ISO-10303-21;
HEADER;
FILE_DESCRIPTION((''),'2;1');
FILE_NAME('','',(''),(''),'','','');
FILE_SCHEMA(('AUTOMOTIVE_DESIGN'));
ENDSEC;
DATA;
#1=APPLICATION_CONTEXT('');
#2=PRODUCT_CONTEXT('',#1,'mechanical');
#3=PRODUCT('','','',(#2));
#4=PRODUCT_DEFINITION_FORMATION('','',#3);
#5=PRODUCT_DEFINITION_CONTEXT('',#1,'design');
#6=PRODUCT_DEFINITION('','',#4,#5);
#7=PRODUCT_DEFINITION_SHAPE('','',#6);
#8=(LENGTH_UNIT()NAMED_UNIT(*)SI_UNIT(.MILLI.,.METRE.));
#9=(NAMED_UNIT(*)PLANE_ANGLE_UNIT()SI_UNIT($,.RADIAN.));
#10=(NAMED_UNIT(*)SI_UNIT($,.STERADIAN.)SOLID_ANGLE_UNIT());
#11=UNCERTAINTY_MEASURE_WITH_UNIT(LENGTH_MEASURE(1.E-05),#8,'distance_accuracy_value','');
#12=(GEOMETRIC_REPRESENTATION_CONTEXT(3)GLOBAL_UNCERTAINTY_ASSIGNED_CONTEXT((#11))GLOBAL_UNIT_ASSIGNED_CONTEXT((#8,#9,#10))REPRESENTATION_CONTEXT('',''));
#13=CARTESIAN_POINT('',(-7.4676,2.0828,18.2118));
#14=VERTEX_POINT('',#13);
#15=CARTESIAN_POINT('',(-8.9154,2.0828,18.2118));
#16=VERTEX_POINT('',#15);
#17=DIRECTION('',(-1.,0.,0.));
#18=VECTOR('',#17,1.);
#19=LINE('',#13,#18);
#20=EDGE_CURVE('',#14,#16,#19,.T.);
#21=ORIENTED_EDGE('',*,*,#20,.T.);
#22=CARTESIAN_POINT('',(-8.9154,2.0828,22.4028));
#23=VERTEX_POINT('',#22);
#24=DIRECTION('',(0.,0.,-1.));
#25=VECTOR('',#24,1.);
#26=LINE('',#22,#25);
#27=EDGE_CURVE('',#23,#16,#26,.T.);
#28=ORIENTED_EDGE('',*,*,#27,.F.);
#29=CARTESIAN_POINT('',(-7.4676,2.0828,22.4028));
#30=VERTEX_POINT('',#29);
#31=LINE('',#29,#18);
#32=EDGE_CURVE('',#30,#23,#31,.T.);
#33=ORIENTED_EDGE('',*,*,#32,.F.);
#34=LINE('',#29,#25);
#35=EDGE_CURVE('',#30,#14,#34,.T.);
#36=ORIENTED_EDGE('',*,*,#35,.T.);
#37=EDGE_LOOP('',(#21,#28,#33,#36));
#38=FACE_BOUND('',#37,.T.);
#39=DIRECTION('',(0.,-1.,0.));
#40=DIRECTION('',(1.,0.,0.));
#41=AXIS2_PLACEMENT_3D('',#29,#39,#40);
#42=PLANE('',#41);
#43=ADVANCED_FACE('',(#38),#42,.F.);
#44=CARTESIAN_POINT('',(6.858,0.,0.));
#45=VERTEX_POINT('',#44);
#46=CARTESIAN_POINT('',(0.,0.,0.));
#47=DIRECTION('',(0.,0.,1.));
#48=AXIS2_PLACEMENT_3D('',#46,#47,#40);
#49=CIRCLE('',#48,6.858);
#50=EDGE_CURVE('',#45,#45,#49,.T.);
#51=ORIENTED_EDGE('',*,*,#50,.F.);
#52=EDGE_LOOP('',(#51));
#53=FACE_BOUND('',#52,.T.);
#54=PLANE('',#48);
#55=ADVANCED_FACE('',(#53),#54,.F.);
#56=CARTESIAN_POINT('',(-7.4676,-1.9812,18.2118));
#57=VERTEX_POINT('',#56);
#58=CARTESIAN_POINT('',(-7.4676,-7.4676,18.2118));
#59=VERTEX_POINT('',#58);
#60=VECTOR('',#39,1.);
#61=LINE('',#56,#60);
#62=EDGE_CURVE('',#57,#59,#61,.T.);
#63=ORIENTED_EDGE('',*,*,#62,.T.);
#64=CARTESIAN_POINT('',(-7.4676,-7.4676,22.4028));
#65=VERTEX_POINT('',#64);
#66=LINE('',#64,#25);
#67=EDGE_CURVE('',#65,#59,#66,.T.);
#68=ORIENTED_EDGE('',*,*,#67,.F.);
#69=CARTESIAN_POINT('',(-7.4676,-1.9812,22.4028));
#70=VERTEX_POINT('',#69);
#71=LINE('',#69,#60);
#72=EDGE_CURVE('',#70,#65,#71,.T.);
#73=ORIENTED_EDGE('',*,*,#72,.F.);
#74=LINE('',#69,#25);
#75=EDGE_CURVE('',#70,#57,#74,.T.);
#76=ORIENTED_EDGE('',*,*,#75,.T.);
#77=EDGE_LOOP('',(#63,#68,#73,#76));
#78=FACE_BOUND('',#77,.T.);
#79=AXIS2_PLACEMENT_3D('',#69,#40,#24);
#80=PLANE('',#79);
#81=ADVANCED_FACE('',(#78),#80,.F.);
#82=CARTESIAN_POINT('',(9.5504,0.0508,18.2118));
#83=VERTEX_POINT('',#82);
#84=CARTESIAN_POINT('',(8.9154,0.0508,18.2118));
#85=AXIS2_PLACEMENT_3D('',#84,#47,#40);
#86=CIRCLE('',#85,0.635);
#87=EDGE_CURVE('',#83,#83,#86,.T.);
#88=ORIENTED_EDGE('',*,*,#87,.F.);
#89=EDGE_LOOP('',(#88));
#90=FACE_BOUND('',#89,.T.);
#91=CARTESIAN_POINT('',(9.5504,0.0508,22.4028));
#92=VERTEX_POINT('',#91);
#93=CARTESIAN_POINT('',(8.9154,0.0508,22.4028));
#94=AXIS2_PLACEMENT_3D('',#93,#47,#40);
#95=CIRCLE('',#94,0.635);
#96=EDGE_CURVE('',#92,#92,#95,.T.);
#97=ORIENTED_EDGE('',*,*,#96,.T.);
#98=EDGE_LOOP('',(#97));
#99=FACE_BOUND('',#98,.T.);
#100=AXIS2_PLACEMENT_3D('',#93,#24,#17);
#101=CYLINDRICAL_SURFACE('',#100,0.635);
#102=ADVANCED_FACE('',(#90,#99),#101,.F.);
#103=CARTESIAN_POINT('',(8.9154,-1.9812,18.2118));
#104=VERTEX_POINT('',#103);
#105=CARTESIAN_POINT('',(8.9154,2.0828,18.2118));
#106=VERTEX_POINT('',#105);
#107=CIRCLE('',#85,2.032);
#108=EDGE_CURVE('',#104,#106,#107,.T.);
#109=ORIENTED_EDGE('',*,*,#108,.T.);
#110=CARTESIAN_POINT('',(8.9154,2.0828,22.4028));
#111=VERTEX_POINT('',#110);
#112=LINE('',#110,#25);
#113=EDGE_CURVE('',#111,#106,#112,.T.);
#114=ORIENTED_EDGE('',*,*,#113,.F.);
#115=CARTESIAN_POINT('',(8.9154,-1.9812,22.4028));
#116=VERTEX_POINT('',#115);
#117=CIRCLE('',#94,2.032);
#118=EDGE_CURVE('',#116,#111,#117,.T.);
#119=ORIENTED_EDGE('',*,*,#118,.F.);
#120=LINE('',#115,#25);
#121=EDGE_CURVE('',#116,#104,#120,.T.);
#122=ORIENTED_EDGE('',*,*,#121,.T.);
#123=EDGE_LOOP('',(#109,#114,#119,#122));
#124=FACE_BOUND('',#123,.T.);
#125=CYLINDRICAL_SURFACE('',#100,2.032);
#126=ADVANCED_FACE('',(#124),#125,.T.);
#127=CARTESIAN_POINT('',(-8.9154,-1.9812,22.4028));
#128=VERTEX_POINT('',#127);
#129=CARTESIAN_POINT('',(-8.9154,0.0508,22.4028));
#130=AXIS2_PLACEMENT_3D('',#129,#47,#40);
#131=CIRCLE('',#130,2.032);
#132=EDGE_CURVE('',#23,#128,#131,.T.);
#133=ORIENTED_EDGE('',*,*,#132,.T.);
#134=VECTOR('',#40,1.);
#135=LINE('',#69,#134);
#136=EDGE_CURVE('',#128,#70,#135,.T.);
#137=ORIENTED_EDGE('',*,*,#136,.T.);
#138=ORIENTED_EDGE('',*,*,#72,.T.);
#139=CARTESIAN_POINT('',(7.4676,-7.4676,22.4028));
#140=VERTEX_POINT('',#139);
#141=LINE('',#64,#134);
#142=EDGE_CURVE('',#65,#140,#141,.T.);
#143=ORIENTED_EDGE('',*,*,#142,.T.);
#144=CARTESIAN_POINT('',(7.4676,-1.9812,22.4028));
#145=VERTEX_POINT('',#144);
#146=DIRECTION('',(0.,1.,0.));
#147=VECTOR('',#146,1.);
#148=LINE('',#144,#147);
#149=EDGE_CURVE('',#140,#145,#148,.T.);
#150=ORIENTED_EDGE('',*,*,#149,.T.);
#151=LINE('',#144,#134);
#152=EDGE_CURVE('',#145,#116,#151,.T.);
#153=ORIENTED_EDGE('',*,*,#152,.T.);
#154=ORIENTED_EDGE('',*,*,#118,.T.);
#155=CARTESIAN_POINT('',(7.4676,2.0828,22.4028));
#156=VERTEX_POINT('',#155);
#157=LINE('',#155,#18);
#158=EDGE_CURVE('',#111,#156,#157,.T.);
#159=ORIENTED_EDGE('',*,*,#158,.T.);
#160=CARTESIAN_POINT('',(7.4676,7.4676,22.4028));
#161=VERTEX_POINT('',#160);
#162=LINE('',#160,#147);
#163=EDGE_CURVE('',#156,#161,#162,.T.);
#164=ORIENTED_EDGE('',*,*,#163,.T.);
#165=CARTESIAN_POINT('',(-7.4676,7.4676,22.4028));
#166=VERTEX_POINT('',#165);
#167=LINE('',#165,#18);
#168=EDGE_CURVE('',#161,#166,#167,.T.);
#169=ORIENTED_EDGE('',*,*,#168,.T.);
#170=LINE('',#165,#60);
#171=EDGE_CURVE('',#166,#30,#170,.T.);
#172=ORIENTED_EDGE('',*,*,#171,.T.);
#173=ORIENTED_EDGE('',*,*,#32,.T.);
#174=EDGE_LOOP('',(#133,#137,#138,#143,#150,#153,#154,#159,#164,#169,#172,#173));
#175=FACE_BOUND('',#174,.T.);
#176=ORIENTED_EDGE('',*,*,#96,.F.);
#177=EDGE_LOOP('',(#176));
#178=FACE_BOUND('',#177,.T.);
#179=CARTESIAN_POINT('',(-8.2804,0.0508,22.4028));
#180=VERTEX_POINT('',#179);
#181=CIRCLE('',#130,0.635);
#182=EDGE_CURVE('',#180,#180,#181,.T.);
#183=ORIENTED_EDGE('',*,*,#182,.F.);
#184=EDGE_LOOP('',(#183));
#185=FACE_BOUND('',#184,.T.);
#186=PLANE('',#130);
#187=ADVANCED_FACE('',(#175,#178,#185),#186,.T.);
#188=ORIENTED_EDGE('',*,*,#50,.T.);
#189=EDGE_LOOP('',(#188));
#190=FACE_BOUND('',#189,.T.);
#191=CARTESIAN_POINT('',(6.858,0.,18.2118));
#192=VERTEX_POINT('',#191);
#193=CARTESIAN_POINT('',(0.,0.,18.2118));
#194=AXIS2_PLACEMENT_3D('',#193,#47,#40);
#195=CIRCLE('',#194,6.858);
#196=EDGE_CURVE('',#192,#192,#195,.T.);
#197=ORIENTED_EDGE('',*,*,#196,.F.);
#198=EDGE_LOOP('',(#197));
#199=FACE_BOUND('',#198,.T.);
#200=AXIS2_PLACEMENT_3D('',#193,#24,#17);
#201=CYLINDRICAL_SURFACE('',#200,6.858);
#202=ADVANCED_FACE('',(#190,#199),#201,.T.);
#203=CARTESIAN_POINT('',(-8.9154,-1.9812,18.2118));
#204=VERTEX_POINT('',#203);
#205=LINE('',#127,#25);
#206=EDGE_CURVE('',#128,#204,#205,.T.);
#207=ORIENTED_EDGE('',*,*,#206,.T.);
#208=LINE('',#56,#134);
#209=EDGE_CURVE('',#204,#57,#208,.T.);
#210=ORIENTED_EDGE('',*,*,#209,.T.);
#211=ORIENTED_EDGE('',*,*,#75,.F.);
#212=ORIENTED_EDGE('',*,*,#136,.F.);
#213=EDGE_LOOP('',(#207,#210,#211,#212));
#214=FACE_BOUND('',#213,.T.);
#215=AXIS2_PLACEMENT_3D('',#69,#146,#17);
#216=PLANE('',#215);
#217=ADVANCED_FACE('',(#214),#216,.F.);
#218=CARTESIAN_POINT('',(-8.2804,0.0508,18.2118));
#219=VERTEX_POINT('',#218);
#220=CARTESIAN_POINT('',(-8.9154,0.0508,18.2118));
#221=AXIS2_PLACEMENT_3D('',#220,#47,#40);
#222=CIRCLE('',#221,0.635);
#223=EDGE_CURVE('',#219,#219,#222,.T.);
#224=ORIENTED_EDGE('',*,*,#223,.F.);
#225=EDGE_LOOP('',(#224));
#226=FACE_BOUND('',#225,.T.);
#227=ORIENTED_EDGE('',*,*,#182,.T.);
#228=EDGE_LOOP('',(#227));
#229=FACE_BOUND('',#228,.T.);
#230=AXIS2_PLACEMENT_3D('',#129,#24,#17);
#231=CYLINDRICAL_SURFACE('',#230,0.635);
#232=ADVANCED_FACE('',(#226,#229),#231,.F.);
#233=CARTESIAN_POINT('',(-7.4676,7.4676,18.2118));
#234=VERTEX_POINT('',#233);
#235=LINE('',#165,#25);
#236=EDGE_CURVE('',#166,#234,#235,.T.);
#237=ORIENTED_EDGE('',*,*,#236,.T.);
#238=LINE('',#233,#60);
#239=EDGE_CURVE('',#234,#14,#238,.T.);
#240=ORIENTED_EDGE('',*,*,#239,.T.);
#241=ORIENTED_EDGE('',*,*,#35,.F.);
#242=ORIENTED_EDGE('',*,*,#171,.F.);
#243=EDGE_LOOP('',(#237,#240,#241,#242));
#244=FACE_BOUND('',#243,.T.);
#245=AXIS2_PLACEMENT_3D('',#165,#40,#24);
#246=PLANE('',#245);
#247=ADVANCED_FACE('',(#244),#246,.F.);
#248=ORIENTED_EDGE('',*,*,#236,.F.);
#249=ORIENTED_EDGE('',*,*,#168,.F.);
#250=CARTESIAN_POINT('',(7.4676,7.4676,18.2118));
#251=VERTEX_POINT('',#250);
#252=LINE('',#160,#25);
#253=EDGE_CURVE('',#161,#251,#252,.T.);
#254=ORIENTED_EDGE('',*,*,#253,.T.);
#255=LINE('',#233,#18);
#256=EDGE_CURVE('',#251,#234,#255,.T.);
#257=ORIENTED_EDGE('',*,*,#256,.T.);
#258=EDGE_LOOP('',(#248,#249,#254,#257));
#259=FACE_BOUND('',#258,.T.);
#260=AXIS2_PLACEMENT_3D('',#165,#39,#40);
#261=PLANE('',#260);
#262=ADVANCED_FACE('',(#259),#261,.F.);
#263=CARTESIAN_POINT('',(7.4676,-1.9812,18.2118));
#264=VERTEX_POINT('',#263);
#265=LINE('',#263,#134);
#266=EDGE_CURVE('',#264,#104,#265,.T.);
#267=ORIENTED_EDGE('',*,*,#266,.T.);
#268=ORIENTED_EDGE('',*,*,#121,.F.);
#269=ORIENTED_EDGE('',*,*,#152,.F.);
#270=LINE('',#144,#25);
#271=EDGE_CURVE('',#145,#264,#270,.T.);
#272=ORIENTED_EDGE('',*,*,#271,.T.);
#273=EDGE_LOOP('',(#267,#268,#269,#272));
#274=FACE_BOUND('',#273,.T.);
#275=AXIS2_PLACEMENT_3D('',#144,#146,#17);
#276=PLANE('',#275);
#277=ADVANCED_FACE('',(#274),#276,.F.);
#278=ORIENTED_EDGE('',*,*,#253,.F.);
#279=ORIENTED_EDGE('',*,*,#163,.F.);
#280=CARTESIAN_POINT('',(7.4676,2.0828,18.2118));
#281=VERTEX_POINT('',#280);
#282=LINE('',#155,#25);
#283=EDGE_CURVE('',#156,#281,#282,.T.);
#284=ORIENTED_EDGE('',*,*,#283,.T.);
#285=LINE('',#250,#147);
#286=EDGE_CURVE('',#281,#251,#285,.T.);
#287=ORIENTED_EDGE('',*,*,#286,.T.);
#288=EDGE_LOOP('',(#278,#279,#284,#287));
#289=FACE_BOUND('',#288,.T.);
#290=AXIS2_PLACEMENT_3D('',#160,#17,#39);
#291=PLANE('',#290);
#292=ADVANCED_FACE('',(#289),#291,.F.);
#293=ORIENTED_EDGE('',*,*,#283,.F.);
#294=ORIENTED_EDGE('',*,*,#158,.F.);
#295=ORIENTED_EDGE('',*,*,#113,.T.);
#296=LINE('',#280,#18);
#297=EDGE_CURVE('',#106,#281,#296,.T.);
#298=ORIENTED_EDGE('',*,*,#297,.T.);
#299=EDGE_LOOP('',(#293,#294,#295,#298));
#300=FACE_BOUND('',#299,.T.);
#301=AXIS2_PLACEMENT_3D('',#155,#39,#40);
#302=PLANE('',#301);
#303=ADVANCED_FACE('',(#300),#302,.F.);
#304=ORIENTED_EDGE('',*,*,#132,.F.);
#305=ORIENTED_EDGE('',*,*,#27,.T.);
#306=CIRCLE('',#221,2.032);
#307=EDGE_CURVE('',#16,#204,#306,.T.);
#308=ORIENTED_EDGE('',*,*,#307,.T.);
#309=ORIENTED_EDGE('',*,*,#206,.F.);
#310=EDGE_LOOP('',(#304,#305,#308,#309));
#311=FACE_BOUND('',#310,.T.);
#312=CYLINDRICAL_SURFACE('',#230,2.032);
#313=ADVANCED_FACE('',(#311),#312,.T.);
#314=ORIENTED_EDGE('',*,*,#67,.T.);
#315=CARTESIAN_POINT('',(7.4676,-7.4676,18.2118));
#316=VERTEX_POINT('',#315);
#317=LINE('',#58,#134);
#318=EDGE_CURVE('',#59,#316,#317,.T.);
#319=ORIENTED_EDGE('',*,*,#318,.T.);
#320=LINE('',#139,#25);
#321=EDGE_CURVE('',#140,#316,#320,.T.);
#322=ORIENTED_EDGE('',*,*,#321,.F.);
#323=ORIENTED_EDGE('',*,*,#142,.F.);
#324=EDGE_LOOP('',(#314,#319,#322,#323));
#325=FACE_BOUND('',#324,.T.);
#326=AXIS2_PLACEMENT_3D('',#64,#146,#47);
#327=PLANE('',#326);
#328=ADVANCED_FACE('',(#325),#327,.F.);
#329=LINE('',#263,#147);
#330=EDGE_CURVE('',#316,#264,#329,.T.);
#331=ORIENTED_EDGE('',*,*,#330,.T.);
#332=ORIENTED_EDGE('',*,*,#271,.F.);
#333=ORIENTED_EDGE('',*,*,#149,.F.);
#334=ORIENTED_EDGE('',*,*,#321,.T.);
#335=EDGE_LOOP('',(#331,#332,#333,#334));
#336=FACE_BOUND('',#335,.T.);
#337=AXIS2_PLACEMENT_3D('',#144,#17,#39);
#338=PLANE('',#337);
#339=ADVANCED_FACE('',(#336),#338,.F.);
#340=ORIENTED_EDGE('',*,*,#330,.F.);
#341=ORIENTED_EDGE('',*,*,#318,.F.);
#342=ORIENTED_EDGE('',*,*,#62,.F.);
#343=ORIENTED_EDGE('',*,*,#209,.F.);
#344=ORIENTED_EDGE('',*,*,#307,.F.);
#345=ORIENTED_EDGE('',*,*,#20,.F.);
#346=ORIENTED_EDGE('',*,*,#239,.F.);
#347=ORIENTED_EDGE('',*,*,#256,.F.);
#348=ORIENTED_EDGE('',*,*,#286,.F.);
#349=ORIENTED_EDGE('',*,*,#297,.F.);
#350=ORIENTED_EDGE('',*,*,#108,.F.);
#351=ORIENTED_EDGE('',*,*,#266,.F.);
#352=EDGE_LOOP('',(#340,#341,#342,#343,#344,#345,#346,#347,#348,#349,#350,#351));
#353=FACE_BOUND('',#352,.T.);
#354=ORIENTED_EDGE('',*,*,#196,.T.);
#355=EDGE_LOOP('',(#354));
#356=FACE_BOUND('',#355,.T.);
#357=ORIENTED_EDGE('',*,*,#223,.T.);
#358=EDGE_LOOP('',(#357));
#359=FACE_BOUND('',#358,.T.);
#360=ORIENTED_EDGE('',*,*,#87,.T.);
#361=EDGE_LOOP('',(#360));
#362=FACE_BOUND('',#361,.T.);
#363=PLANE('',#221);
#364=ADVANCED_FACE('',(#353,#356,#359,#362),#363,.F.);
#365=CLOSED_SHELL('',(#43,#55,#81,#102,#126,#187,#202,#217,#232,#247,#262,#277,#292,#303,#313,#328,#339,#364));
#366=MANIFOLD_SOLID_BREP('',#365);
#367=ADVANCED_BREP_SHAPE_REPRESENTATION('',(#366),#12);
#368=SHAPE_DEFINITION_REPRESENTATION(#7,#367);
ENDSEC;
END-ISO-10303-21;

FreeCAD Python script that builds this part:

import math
import FreeCAD as App
import Part
import Sketcher
Q = App.Units.Quantity

doc = App.newDocument("Part")
body = doc.addObject("PartDesign::Body", "Body")

# Sketch on XY plane
sketch1 = body.newObject("Sketcher::SketchObject", "Sketch")
sketch1.AttachmentSupport = (doc.getObject("XY_Plane"), [""])
sketch1.MapMode = "FlatFace"
sketch1.addGeometry(Part.Circle(App.Vector(0, 0, 0), App.Vector(0, 0, 1), 7), False)
sketch1.addConstraint([
    Sketcher.Constraint("Coincident", 0, 3, -1, 1),
    Sketcher.Constraint("Diameter", 0, Q("0.54 in")),
])
pad1 = body.newObject("PartDesign::Pad", "Pad")
pad1.Profile = sketch1
pad1.Length = Q("0.717 in")

# Sketch on XY plane
sketch2 = body.newObject("Sketcher::SketchObject", "Sketch001")
sketch2.AttachmentSupport = (doc.getObject("XY_Plane"), [""])
sketch2.MapMode = "FlatFace"
sketch2.AttachmentOffset = App.Placement(App.Vector(0, 0, 0.717 * 25.4), App.Rotation())
sketch2.addGeometry([
    Part.LineSegment(App.Vector(7.5, 7.5, 0), App.Vector(-7.5, 7.5, 0)),  # 0
    Part.LineSegment(App.Vector(-7.5, 7.5, 0), App.Vector(-7.5, 2.1, 0)),  # 1
    Part.LineSegment(App.Vector(-7.5, 2.1, 0), App.Vector(-8.9, 2.1, 0)),  # 2
    Part.ArcOfCircle(Part.Circle(App.Vector(-8.9, 0.1, 0), App.Vector(0, 0, 1), 2), math.radians(90), math.radians(270)),  # 3
    Part.LineSegment(App.Vector(-8.9, -2, 0), App.Vector(-7.5, -2, 0)),  # 4
    Part.LineSegment(App.Vector(-7.5, -2, 0), App.Vector(-7.5, -7.5, 0)),  # 5
    Part.LineSegment(App.Vector(-7.5, -7.5, 0), App.Vector(7.5, -7.5, 0)),  # 6
    Part.LineSegment(App.Vector(7.5, -7.5, 0), App.Vector(7.5, -2, 0)),  # 7
    Part.LineSegment(App.Vector(7.5, -2, 0), App.Vector(8.9, -2, 0)),  # 8
    Part.ArcOfCircle(Part.Circle(App.Vector(8.9, 0.1, 0), App.Vector(0, 0, 1), 2), math.radians(-90), math.radians(90)),  # 9
    Part.LineSegment(App.Vector(8.9, 2.1, 0), App.Vector(7.5, 2.1, 0)),  # 10
    Part.LineSegment(App.Vector(7.5, 2.1, 0), App.Vector(7.5, 7.5, 0)),  # 11
    Part.Circle(App.Vector(8.9, 0.1, 0), App.Vector(0, 0, 1), 0.6),  # 12
    Part.Circle(App.Vector(-8.9, 0.1, 0), App.Vector(0, 0, 1), 0.6),  # 13
], False)
sketch2.addConstraint([
    Sketcher.Constraint("Coincident", 0, 2, 1, 1),
    Sketcher.Constraint("Coincident", 1, 2, 2, 1),
    Sketcher.Constraint("Tangent", 2, 2, 3, 1),
    Sketcher.Constraint("Tangent", 3, 2, 4, 1),
    Sketcher.Constraint("Coincident", 4, 2, 5, 1),
    Sketcher.Constraint("Coincident", 5, 2, 6, 1),
    Sketcher.Constraint("Coincident", 6, 2, 7, 1),
    Sketcher.Constraint("Coincident", 7, 2, 8, 1),
    Sketcher.Constraint("Tangent", 8, 2, 9, 1),
    Sketcher.Constraint("Tangent", 9, 2, 10, 1),
    Sketcher.Constraint("Coincident", 10, 2, 11, 1),
    Sketcher.Constraint("Coincident", 11, 2, 0, 1),
    Sketcher.Constraint("Horizontal", 0),
    Sketcher.Constraint("Vertical", 1),
    Sketcher.Constraint("Horizontal", 2),
    Sketcher.Constraint("Horizontal", 4),
    Sketcher.Constraint("Vertical", 5),
    Sketcher.Constraint("Horizontal", 6),
    Sketcher.Constraint("Vertical", 7),
    Sketcher.Constraint("Horizontal", 8),
    Sketcher.Constraint("Horizontal", 10),
    Sketcher.Constraint("Vertical", 11),
    Sketcher.Constraint("Coincident", 12, 3, 9, 3),
    Sketcher.Constraint("Coincident", 13, 3, 3, 3),
    Sketcher.Constraint("Equal", 3, 9),
    Sketcher.Constraint("Equal", 12, 13),
    Sketcher.Constraint("Symmetric", 0, 2, 6, 2, -1, 1),
    Sketcher.Constraint("Symmetric", 3, 3, 9, 3, -2),
    Sketcher.Constraint("Vertical", 1, 2, 4, 2),
    Sketcher.Constraint("Vertical", 7, 2, 10, 2),
    Sketcher.Constraint("Diameter", 12, Q("0.05 in")),
    Sketcher.Constraint("Radius", 3, Q("0.08 in")),
    Sketcher.Constraint("DistanceX", 0, 2, 0, 1, Q("0.588 in")),
    Sketcher.Constraint("DistanceX", 2, 2, 2, 1, Q("0.057 in")),
    Sketcher.Constraint("DistanceY", 1, 2, 1, 1, Q("0.212 in")),
    Sketcher.Constraint("DistanceY", 5, 2, 5, 1, Q("0.216 in")),
])
pad2 = body.newObject("PartDesign::Pad", "Pad001")
pad2.Profile = sketch2
pad2.Length = Q("0.165 in")

doc.recompute()
